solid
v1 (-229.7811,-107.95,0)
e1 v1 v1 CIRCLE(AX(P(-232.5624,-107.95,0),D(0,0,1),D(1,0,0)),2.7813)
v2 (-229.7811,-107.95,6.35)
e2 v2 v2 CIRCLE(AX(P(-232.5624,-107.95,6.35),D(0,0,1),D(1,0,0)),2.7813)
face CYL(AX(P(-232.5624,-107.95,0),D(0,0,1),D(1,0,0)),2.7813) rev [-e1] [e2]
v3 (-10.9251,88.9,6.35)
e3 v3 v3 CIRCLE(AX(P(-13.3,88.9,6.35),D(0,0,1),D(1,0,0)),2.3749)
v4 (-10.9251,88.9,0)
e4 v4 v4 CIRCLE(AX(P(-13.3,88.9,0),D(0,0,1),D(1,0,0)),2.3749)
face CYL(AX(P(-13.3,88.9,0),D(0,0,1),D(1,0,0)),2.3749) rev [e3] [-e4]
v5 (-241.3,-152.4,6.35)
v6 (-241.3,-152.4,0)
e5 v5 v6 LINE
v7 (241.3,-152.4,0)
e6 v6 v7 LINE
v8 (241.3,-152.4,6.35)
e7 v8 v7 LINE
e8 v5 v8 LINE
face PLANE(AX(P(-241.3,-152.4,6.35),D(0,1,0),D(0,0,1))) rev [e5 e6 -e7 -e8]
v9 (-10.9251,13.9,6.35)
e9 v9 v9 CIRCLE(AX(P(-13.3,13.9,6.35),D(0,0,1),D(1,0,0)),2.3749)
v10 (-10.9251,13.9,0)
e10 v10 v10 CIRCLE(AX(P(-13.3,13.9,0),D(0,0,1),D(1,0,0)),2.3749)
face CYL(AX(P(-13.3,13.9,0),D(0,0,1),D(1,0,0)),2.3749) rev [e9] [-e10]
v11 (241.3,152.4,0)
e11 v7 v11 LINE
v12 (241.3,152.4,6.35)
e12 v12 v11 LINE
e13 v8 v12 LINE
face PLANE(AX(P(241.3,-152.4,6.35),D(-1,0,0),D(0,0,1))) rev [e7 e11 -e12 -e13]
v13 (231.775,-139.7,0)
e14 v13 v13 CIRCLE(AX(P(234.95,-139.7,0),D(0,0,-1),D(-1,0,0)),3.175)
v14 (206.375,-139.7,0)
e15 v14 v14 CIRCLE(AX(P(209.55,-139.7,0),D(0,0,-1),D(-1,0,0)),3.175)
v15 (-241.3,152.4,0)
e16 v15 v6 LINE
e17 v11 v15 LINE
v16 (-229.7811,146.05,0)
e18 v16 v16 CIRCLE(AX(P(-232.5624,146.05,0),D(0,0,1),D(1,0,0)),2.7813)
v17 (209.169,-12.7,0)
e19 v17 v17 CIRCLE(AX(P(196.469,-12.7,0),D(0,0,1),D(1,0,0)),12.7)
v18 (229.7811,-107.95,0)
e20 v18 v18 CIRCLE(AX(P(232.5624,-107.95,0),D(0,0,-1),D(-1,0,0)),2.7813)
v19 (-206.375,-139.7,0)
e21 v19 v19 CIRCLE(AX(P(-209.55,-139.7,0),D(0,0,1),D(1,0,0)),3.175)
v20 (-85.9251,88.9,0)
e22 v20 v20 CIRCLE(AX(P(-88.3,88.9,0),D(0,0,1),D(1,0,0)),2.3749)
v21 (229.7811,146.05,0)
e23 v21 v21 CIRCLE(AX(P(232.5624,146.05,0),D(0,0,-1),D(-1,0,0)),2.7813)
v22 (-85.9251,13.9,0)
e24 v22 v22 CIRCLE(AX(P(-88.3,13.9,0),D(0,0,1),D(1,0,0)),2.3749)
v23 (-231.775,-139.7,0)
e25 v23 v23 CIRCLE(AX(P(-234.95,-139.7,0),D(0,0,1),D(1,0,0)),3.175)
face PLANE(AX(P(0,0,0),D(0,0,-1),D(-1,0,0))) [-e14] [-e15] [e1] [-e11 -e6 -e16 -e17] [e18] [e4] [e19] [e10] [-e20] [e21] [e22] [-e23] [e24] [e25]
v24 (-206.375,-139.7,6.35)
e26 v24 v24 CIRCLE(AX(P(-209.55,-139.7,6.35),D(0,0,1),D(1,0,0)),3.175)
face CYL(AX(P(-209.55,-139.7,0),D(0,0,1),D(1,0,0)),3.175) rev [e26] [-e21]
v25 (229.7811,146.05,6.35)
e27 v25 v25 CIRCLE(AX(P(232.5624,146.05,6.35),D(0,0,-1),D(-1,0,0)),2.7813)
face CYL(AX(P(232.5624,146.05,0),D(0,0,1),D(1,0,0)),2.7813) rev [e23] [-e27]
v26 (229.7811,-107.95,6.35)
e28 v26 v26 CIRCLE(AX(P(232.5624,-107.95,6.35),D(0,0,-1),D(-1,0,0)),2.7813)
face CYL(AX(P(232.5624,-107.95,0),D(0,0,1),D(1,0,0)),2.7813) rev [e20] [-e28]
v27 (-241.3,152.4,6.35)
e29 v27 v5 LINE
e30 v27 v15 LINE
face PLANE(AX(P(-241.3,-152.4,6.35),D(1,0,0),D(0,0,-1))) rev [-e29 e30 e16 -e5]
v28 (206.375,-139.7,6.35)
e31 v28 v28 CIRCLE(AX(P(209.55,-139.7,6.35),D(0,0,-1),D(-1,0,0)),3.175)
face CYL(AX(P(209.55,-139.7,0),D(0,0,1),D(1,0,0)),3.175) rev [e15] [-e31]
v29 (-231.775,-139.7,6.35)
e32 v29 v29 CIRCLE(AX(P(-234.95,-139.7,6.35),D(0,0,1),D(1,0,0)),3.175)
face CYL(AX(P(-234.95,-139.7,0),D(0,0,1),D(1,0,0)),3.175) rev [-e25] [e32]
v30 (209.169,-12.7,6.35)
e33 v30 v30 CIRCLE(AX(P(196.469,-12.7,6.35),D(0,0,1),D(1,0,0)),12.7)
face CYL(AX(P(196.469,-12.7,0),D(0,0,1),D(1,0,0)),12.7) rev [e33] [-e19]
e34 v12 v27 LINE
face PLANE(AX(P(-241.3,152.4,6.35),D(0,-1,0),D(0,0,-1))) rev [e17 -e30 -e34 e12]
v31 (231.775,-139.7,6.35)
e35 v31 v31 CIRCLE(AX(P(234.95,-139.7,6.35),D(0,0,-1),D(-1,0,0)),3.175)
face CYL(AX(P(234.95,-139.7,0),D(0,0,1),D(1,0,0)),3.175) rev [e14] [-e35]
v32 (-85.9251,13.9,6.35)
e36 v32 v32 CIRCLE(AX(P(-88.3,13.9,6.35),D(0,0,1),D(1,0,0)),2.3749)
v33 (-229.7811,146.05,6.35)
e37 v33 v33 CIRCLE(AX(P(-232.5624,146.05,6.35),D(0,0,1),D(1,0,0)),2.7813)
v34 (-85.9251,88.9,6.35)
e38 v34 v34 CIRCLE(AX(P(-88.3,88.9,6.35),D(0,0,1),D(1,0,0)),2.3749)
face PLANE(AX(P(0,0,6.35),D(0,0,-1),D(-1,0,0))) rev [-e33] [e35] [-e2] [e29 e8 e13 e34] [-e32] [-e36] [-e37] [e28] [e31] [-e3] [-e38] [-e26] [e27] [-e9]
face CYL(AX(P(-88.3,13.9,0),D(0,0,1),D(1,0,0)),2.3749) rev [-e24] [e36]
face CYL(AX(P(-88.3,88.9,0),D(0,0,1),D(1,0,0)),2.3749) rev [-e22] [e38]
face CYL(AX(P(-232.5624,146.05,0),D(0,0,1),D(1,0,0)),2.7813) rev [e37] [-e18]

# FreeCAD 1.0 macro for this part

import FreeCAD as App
import Part
import Sketcher

V = App.Vector
Q = App.Units.Quantity

doc = App.newDocument("Part")
body = doc.addObject("PartDesign::Body", "Body")

# Sketch on XY plane
sketch1 = doc.addObject("Sketcher::SketchObject", "Sketch")
body.addObject(sketch1)
sketch1.AttachmentSupport = (doc.XY_Plane, [""])
sketch1.MapMode = "FlatFace"
sketch1.addGeometry([
    Part.LineSegment(V(-241, 152, 0), V(-241, -152, 0)),
    Part.LineSegment(V(-241, -152, 0), V(241, -152, 0)),
    Part.LineSegment(V(241, -152, 0), V(241, 152, 0)),
    Part.LineSegment(V(241, 152, 0), V(-241, 152, 0)),
], False)
sketch1.addConstraint([
    Sketcher.Constraint("Coincident", 0, 2, 1, 1),
    Sketcher.Constraint("Coincident", 1, 2, 2, 1),
    Sketcher.Constraint("Coincident", 2, 2, 3, 1),
    Sketcher.Constraint("Coincident", 3, 2, 0, 1),
    Sketcher.Constraint("Vertical", 0),
    Sketcher.Constraint("Horizontal", 1),
    Sketcher.Constraint("Vertical", 2),
    Sketcher.Constraint("Horizontal", 3),
    Sketcher.Constraint("Symmetric", 0, 2, 2, 2, -1, 1),
    Sketcher.Constraint("DistanceX", 1, 1, 1, 2, Q("19 in")),
    Sketcher.Constraint("DistanceY", 0, 2, 0, 1, Q("12 in")),
])
pad1 = doc.addObject("PartDesign::Pad", "Pad")
body.addObject(pad1)
pad1.Profile = sketch1
pad1.Length = Q("0.25 in")

# Sketch on XY plane
sketch2 = doc.addObject("Sketcher::SketchObject", "Sketch001")
body.addObject(sketch2)
sketch2.AttachmentSupport = (doc.XY_Plane, [""])
sketch2.MapMode = "FlatFace"
sketch2.AttachmentOffset = App.Placement(V(0, 0, 0.25 * 25.4), App.Rotation())
sketch2.addGeometry([
    Part.Circle(V(-232.6, 146.1, 0), V(0, 0, 1), 2.8),
    Part.Circle(V(-232.6, -108, 0), V(0, 0, 1), 2.8),
], False)
sketch2.addConstraint([
    Sketcher.Constraint("Equal", 0, 1),
    Sketcher.Constraint("Vertical", 0, 3, 1, 3),
    Sketcher.Constraint("Diameter", 0, Q("0.219 in")),
    Sketcher.Constraint("DistanceY", 1, 3, 0, 3, Q("10 in")),
    Sketcher.Constraint("DistanceY", -1, 1, 0, 3, Q("5.75 in")),
    Sketcher.Constraint("DistanceX", 0, 3, -1, 1, Q("9.156 in")),
])
pocket1 = doc.addObject("PartDesign::Pocket", "Pocket")
body.addObject(pocket1)
pocket1.Profile = sketch2
pocket1.Type = "ThroughAll"
doc.recompute()

mirrored = doc.addObject("PartDesign::Mirrored", "Mirrored")
body.addObject(mirrored)
mirrored.Originals = [pocket1]
mirrored.MirrorPlane = (doc.YZ_Plane, [""])
body.Tip = mirrored

# Sketch on XY plane
sketch3 = doc.addObject("Sketcher::SketchObject", "Sketch002")
body.addObject(sketch3)
sketch3.AttachmentSupport = (doc.XY_Plane, [""])
sketch3.MapMode = "FlatFace"
sketch3.AttachmentOffset = App.Placement(V(0, 0, 0.25 * 25.4), App.Rotation())
sketch3.addGeometry([
    Part.Circle(V(-234.9, -139.7, 0), V(0, 0, 1), 3.2),
    Part.Circle(V(-209.6, -139.7, 0), V(0, 0, 1), 3.2),
], False)
sketch3.addConstraint([
    Sketcher.Constraint("Equal", 0, 1),
    Sketcher.Constraint("Horizontal", 0, 3, 1, 3),
    Sketcher.Constraint("Diameter", 0, Q("0.25 in")),
    Sketcher.Constraint("DistanceX", 0, 3, 1, 3, Q("1 in")),
    Sketcher.Constraint("DistanceY", 0, 3, -1, 1, Q("5.5 in")),
    Sketcher.Constraint("DistanceX", 0, 3, -1, 1, Q("9.25 in")),
])
pocket2 = doc.addObject("PartDesign::Pocket", "Pocket001")
body.addObject(pocket2)
pocket2.Profile = sketch3
pocket2.Type = "ThroughAll"
doc.recompute()

mirrored2 = doc.addObject("PartDesign::Mirrored", "Mirrored001")
body.addObject(mirrored2)
mirrored2.Originals = [pocket2]
mirrored2.MirrorPlane = (doc.YZ_Plane, [""])
body.Tip = mirrored2

# Sketch on XY plane
sketch4 = doc.addObject("Sketcher::SketchObject", "Sketch003")
body.addObject(sketch4)
sketch4.AttachmentSupport = (doc.XY_Plane, [""])
sketch4.MapMode = "FlatFace"
sketch4.AttachmentOffset = App.Placement(V(0, 0, 0.25 * 25.4), App.Rotation())
sketch4.addGeometry(Part.Circle(V(196, -13, 0), V(0, 0, 1), 13), False)
sketch4.addConstraint([
    Sketcher.Constraint("Diameter", 0, Q("1 in")),
    Sketcher.Constraint("DistanceY", 0, 3, -1, 1, Q("0.5 in")),
    Sketcher.Constraint("DistanceX", -1, 1, 0, 3, Q("7.735 in")),
])
pocket3 = doc.addObject("PartDesign::Pocket", "Pocket002")
body.addObject(pocket3)
pocket3.Profile = sketch4
pocket3.Type = "ThroughAll"

# Sketch on XY plane
sketch5 = doc.addObject("Sketcher::SketchObject", "Sketch004")
body.addObject(sketch5)
sketch5.AttachmentSupport = (doc.XY_Plane, [""])
sketch5.MapMode = "FlatFace"
sketch5.AttachmentOffset = App.Placement(V(0, 0, 0.25 * 25.4), App.Rotation())
sketch5.addGeometry([
    Part.Circle(V(-88.3, 88.9, 0), V(0, 0, 1), 2.4),
    Part.Circle(V(-13.3, 88.9, 0), V(0, 0, 1), 2.4),
    Part.Circle(V(-13.3, 13.9, 0), V(0, 0, 1), 2.4),
    Part.Circle(V(-88.3, 13.9, 0), V(0, 0, 1), 2.4),
], False)
sketch5.addConstraint([
    Sketcher.Constraint("Equal", 0, 1),
    Sketcher.Constraint("Equal", 1, 2),
    Sketcher.Constraint("Equal", 2, 3),
    Sketcher.Constraint("Horizontal", 0, 3, 1, 3),
    Sketcher.Constraint("Horizontal", 2, 3, 3, 3),
    Sketcher.Constraint("Vertical", 1, 3, 2, 3),
    Sketcher.Constraint("Vertical", 0, 3, 3, 3),
    Sketcher.Constraint("Diameter", 0, Q("0.187 in")),
    Sketcher.Constraint("DistanceY", -1, 1, 0, 3, Q("3.5 in")),
    Sketcher.Constraint("DistanceX", 0, 3, -1, 1, 88.3),
    Sketcher.Constraint("DistanceX", 1, 3, -1, 1, 13.3),
    Sketcher.Constraint("DistanceY", -1, 1, 2, 3, 13.9),
])
pocket4 = doc.addObject("PartDesign::Pocket", "Pocket003")
body.addObject(pocket4)
pocket4.Profile = sketch5
pocket4.Type = "ThroughAll"

doc.recompute()
